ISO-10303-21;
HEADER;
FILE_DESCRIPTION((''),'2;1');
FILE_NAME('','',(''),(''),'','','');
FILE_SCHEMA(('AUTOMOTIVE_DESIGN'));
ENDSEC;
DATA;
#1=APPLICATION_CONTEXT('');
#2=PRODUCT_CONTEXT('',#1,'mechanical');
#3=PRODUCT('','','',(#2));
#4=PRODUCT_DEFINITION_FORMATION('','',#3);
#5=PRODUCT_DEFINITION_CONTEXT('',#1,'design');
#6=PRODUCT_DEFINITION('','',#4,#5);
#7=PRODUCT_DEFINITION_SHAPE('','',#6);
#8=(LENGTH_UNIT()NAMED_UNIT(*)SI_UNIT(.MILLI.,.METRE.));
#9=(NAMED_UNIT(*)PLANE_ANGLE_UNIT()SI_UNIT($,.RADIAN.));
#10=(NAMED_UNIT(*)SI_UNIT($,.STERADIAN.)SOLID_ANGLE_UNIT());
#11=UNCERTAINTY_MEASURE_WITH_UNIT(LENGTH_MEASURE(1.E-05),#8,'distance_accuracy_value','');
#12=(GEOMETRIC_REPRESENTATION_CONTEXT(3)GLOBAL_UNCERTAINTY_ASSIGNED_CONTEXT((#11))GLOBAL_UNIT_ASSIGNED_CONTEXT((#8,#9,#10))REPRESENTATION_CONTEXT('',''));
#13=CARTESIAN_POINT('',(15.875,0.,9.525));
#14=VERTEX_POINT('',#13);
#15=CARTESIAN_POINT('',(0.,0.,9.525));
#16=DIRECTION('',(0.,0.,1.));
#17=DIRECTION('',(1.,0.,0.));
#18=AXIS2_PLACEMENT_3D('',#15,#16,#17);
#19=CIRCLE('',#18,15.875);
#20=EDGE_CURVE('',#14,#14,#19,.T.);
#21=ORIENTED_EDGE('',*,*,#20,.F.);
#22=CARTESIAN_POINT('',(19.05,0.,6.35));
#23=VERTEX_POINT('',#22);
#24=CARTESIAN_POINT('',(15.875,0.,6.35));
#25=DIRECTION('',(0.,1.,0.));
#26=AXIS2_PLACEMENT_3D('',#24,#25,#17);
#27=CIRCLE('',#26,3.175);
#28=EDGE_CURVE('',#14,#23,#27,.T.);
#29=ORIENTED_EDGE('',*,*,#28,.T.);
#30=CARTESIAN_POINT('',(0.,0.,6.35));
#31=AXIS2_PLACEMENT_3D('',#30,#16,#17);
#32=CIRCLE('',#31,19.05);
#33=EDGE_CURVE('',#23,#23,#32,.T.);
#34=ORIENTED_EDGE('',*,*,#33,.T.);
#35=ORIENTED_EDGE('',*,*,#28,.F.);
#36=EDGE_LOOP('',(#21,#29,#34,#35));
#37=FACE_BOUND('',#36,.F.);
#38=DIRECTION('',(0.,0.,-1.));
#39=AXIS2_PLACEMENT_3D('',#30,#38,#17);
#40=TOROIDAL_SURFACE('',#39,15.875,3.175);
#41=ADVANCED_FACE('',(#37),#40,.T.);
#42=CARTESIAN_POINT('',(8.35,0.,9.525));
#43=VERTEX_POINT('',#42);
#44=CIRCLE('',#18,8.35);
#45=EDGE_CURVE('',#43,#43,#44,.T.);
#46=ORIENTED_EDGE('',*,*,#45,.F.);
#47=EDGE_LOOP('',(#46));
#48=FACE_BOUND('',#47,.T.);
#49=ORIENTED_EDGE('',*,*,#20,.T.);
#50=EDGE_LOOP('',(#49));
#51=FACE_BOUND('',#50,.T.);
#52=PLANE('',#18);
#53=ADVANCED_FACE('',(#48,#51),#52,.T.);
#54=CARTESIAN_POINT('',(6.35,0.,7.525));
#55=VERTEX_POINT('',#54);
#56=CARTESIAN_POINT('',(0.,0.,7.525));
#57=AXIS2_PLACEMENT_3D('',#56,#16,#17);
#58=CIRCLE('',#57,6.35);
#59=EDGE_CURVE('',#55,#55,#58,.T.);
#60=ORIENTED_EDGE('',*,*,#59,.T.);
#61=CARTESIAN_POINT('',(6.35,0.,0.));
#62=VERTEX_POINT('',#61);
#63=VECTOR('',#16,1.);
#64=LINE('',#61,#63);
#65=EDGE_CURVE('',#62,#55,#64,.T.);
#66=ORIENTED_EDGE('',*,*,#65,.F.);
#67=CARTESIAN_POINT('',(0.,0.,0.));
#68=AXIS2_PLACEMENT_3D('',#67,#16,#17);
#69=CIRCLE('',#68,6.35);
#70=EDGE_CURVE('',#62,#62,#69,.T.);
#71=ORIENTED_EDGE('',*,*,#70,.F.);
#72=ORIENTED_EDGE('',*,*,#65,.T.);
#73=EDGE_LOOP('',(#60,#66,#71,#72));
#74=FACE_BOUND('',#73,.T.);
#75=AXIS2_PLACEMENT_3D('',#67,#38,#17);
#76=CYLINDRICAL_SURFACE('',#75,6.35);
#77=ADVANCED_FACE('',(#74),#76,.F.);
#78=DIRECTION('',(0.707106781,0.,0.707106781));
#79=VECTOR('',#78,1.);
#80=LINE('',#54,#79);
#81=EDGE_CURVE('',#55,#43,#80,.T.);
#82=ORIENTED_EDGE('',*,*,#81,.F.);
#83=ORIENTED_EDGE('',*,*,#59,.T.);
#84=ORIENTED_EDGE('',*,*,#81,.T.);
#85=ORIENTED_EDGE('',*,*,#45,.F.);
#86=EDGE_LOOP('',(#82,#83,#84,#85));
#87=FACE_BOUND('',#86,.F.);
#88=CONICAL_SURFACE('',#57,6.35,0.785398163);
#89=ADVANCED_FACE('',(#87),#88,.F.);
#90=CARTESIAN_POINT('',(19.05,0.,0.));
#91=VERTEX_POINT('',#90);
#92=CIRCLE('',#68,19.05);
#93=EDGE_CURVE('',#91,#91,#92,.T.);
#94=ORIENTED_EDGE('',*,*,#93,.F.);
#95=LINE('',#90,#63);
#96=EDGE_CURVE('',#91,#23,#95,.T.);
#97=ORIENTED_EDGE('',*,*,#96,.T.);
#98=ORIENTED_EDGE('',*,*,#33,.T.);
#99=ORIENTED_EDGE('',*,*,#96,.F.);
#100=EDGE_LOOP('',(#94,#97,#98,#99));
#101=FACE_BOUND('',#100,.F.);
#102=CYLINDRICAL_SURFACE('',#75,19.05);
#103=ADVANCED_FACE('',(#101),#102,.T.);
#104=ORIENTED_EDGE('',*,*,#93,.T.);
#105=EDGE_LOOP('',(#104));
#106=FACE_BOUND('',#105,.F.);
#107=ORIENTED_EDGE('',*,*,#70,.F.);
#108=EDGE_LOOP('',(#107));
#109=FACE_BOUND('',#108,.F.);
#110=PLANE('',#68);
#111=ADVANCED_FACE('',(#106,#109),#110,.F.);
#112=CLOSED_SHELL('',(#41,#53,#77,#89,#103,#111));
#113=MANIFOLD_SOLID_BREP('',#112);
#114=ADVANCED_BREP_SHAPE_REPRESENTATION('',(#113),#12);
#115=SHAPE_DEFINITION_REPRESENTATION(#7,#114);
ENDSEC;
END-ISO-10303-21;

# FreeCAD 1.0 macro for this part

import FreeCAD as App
import Part
import Sketcher

V = App.Vector
Q = App.Units.Quantity


def edges_at(feature, points):
    """Names of the edges that pass closest to the given points."""
    edges = feature.Shape.Edges
    near = lambda p: min(range(len(edges)), key=lambda i: edges[i].distToShape(Part.Vertex(*p))[0])
    return sorted({f"Edge{near(p) + 1}" for p in points})

doc = App.newDocument("Part")
body = doc.addObject("PartDesign::Body", "Body")

sketch1 = doc.addObject("Sketcher::SketchObject", "Sketch")
body.addObject(sketch1)
sketch1.AttachmentSupport = (doc.XY_Plane, [""])
sketch1.MapMode = "FlatFace"
sketch1.addGeometry([
    Part.Circle(V(0, 0, 0), V(0, 0, 1), 19.05),
    Part.Circle(V(0, 0, 0), V(0, 0, 1), 6.35),
], False)
sketch1.addConstraint([
    Sketcher.Constraint("Coincident", 0, 3, -1, 1),
    Sketcher.Constraint("Coincident", 1, 3, -1, 1),
    Sketcher.Constraint("Diameter", 0, Q("1.5 in")),
    Sketcher.Constraint("Diameter", 1, Q("0.5 in")),
])
pad1 = doc.addObject("PartDesign::Pad", "Pad")
body.addObject(pad1)
pad1.Profile = sketch1
pad1.Length = Q("0.375 in")
doc.recompute()

chamfer = doc.addObject("PartDesign::Chamfer", "Chamfer")
body.addObject(chamfer)
chamfer.Base = (pad1, edges_at(pad1, [(-6.35, 0, 9.525)]))
chamfer.Size = 2
doc.recompute()

fillet = doc.addObject("PartDesign::Fillet", "Fillet")
body.addObject(fillet)
fillet.Base = (chamfer, edges_at(chamfer, [(-19.05, 0, 9.525)]))
fillet.Radius = Q("0.125 in")

doc.recompute()
